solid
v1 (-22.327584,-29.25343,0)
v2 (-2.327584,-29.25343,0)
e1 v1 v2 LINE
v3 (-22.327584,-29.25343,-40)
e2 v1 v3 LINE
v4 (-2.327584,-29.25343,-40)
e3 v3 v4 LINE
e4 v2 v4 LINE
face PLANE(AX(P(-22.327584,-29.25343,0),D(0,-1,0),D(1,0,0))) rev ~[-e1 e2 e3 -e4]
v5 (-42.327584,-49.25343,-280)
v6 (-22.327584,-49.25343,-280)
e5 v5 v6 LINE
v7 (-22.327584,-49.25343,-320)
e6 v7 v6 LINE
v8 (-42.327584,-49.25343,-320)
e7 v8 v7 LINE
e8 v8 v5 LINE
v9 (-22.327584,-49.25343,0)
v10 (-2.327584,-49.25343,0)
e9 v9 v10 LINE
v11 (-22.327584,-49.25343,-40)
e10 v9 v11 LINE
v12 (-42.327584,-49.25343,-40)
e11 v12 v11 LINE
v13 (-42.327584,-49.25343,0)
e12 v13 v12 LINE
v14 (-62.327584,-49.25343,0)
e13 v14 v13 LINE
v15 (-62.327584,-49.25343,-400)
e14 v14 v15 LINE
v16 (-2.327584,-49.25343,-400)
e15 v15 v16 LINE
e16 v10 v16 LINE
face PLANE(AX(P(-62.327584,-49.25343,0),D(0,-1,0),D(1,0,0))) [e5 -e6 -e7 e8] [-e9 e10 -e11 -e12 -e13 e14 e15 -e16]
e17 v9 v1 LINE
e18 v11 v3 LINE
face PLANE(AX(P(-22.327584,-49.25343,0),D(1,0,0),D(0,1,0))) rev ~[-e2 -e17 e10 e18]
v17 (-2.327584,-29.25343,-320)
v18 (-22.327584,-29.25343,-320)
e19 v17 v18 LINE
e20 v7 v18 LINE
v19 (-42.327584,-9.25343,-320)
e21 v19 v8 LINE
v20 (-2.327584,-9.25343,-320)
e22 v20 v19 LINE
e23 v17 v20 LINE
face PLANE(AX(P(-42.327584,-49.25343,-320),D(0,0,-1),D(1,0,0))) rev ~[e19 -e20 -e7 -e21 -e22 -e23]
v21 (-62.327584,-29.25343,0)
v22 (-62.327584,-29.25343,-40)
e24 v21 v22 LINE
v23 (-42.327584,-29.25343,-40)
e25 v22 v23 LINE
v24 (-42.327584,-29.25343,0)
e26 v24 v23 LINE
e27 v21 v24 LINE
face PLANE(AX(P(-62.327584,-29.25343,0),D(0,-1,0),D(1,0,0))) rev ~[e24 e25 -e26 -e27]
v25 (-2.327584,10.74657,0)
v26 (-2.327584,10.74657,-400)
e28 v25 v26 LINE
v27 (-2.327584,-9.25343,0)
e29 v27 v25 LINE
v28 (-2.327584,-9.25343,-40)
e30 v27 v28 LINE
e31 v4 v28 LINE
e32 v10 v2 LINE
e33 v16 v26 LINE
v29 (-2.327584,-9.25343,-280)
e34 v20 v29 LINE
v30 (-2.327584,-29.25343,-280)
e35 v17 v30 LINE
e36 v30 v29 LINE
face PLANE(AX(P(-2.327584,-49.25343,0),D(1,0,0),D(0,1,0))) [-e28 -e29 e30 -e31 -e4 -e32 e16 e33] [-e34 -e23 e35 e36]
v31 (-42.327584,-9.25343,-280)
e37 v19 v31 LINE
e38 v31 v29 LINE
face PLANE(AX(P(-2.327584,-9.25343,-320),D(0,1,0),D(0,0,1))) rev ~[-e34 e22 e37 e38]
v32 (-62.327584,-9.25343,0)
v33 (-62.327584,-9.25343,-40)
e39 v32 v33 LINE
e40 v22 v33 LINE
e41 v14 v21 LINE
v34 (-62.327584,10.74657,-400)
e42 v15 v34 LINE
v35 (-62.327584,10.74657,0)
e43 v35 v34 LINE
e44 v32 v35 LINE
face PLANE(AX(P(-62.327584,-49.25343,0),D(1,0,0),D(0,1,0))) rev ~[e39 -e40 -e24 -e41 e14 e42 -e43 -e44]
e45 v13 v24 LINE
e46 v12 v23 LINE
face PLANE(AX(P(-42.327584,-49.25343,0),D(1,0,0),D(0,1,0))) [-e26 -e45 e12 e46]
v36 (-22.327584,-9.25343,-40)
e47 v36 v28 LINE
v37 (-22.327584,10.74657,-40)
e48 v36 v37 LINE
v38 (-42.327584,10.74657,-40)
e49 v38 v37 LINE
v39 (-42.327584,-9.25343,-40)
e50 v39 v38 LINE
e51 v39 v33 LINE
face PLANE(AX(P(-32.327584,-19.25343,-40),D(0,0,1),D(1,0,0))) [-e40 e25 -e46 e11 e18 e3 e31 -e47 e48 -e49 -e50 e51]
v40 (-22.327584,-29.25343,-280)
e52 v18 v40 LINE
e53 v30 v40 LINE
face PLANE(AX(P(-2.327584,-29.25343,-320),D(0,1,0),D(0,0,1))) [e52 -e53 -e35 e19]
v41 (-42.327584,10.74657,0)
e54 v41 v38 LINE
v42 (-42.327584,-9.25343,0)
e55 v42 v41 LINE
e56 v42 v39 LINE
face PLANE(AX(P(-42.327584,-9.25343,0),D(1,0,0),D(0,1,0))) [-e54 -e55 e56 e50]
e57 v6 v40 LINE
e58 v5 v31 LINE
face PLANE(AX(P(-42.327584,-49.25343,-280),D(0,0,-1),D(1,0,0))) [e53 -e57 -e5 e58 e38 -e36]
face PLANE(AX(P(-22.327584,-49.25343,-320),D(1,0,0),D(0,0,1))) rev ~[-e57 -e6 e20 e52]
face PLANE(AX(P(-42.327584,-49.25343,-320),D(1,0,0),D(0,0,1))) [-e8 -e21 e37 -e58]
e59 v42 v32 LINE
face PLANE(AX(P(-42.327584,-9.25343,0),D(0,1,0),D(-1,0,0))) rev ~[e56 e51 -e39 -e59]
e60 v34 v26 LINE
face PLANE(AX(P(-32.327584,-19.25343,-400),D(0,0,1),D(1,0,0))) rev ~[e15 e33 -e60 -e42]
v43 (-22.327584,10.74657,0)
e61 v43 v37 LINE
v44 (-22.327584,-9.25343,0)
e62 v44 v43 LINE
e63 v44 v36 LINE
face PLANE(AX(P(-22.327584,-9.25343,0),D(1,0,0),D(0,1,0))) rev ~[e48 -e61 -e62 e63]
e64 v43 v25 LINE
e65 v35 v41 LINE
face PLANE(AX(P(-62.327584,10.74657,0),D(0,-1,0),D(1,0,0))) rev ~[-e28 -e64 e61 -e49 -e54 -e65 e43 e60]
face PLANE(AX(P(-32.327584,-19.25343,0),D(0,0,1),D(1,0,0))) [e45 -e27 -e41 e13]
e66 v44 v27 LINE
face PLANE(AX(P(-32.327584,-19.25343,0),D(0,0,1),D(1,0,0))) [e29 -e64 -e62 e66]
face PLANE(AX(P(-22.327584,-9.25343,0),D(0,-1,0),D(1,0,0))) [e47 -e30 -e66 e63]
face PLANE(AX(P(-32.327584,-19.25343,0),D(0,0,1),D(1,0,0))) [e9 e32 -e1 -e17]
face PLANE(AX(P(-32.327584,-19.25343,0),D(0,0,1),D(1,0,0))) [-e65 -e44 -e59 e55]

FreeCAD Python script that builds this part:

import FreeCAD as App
import Part
import Sketcher

V = App.Vector

doc = App.newDocument("Part")
body = doc.addObject("PartDesign::Body", "Body")

# Sketch on XY plane
sketch1 = doc.addObject("Sketcher::SketchObject", "Sketch")
body.addObject(sketch1)
sketch1.AttachmentSupport = (doc.XY_Plane, [""])
sketch1.MapMode = "FlatFace"
sketch1.addGeometry([
    Part.LineSegment(V(-62, 11, 0), V(-62, -49, 0)),
    Part.LineSegment(V(-62, -49, 0), V(-2, -49, 0)),
    Part.LineSegment(V(-2, -49, 0), V(-2, 11, 0)),
    Part.LineSegment(V(-2, 11, 0), V(-62, 11, 0)),
], False)
sketch1.addConstraint([
    Sketcher.Constraint("Coincident", 0, 2, 1, 1),
    Sketcher.Constraint("Coincident", 1, 2, 2, 1),
    Sketcher.Constraint("Coincident", 2, 2, 3, 1),
    Sketcher.Constraint("Coincident", 3, 2, 0, 1),
    Sketcher.Constraint("Vertical", 0),
    Sketcher.Constraint("Horizontal", 1),
    Sketcher.Constraint("Vertical", 2),
    Sketcher.Constraint("Horizontal", 3),
    Sketcher.Constraint("Equal", 3, 0),
    Sketcher.Constraint("DistanceX", 1, 1, 1, 2, 60.0),
    Sketcher.Constraint("DistanceY", 0, 2, -1, 1, 49.25343),
    Sketcher.Constraint("DistanceX", 0, 2, -1, 1, 62.327584),
])
pad1 = doc.addObject("PartDesign::Pad", "Pad")
body.addObject(pad1)
pad1.Profile = sketch1
pad1.Length = 400
pad1.Reversed = True

# Sketch on XY plane
sketch2 = doc.addObject("Sketcher::SketchObject", "Sketch001")
body.addObject(sketch2)
sketch2.AttachmentSupport = (doc.XY_Plane, [""])
sketch2.MapMode = "FlatFace"
sketch2.addGeometry([
    Part.LineSegment(V(-22, -9, 0), V(-22, 11, 0)),  # 0
    Part.LineSegment(V(-22, 11, 0), V(-42, 11, 0)),  # 1
    Part.LineSegment(V(-42, 11, 0), V(-42, -9, 0)),  # 2
    Part.LineSegment(V(-42, -9, 0), V(-62, -9, 0)),  # 3
    Part.LineSegment(V(-62, -9, 0), V(-62, -29, 0)),  # 4
    Part.LineSegment(V(-62, -29, 0), V(-42, -29, 0)),  # 5
    Part.LineSegment(V(-42, -29, 0), V(-42, -49, 0)),  # 6
    Part.LineSegment(V(-42, -49, 0), V(-22, -49, 0)),  # 7
    Part.LineSegment(V(-22, -49, 0), V(-22, -29, 0)),  # 8
    Part.LineSegment(V(-22, -29, 0), V(-2, -29, 0)),  # 9
    Part.LineSegment(V(-2, -29, 0), V(-2, -9, 0)),  # 10
    Part.LineSegment(V(-2, -9, 0), V(-22, -9, 0)),  # 11
], False)
sketch2.addConstraint([
    Sketcher.Constraint("Coincident", 0, 2, 1, 1),
    Sketcher.Constraint("Coincident", 1, 2, 2, 1),
    Sketcher.Constraint("Coincident", 2, 2, 3, 1),
    Sketcher.Constraint("Coincident", 3, 2, 4, 1),
    Sketcher.Constraint("Coincident", 4, 2, 5, 1),
    Sketcher.Constraint("Coincident", 5, 2, 6, 1),
    Sketcher.Constraint("Coincident", 6, 2, 7, 1),
    Sketcher.Constraint("Coincident", 7, 2, 8, 1),
    Sketcher.Constraint("Coincident", 8, 2, 9, 1),
    Sketcher.Constraint("Coincident", 9, 2, 10, 1),
    Sketcher.Constraint("Coincident", 10, 2, 11, 1),
    Sketcher.Constraint("Coincident", 11, 2, 0, 1),
    Sketcher.Constraint("Vertical", 0),
    Sketcher.Constraint("Horizontal", 1),
    Sketcher.Constraint("Vertical", 2),
    Sketcher.Constraint("Horizontal", 3),
    Sketcher.Constraint("Vertical", 4),
    Sketcher.Constraint("Horizontal", 5),
    Sketcher.Constraint("Vertical", 6),
    Sketcher.Constraint("Horizontal", 7),
    Sketcher.Constraint("Vertical", 8),
    Sketcher.Constraint("Horizontal", 9),
    Sketcher.Constraint("Vertical", 10),
    Sketcher.Constraint("Horizontal", 11),
    Sketcher.Constraint("Horizontal", 5, 2, 8, 2),
    Sketcher.Constraint("Horizontal", 3, 2, 10, 2),
    Sketcher.Constraint("Vertical", 2, 2, 5, 2),
    Sketcher.Constraint("Vertical", 0, 2, 7, 2),
    Sketcher.Constraint("Equal", 1, 3),
    Sketcher.Constraint("Equal", 7, 9),
    Sketcher.Constraint("Equal", 11, 0),
    Sketcher.Constraint("Equal", 2, 4),
    Sketcher.Constraint("Equal", 4, 6),
    Sketcher.Constraint("DistanceX", 1, 2, 1, 1, 20.0),
    Sketcher.Constraint("DistanceY", -1, 1, 0, 2, 10.74657),
    Sketcher.Constraint("DistanceX", 0, 2, -1, 1, 22.327584),
])
pocket1 = doc.addObject("PartDesign::Pocket", "Pocket")
body.addObject(pocket1)
pocket1.Profile = sketch2
pocket1.Length = 40

# Sketch on XZ plane
sketch3 = doc.addObject("Sketcher::SketchObject", "Sketch002")
body.addObject(sketch3)
sketch3.AttachmentSupport = (doc.XZ_Plane, [""])
sketch3.MapMode = "FlatFace"
sketch3.AttachmentOffset = App.Placement(V(0, 0, 49.25343), App.Rotation())
sketch3.addGeometry([
    Part.LineSegment(V(-42, -280, 0), V(-42, -320, 0)),
    Part.LineSegment(V(-42, -320, 0), V(-22, -320, 0)),
    Part.LineSegment(V(-22, -320, 0), V(-22, -280, 0)),
    Part.LineSegment(V(-22, -280, 0), V(-42, -280, 0)),
], False)
sketch3.addConstraint([
    Sketcher.Constraint("Coincident", 0, 2, 1, 1),
    Sketcher.Constraint("Coincident", 1, 2, 2, 1),
    Sketcher.Constraint("Coincident", 2, 2, 3, 1),
    Sketcher.Constraint("Coincident", 3, 2, 0, 1),
    Sketcher.Constraint("Vertical", 0),
    Sketcher.Constraint("Horizontal", 1),
    Sketcher.Constraint("Vertical", 2),
    Sketcher.Constraint("Horizontal", 3),
    Sketcher.Constraint("DistanceX", 1, 1, 1, 2, 20.0),
    Sketcher.Constraint("DistanceY", 0, 2, 0, 1, 40.0),
    Sketcher.Constraint("DistanceY", 0, 2, -1, 1, 320.0),
    Sketcher.Constraint("DistanceX", 0, 2, -1, 1, 42.327584),
])
pocket2 = doc.addObject("PartDesign::Pocket", "Pocket001")
body.addObject(pocket2)
pocket2.Profile = sketch3
pocket2.Length = 40

# Sketch on YZ plane
sketch4 = doc.addObject("Sketcher::SketchObject", "Sketch003")
body.addObject(sketch4)
sketch4.AttachmentSupport = (doc.YZ_Plane, [""])
sketch4.MapMode = "FlatFace"
sketch4.AttachmentOffset = App.Placement(V(0, 0, -2.327584), App.Rotation())
sketch4.addGeometry([
    Part.LineSegment(V(-29, -280, 0), V(-29, -320, 0)),
    Part.LineSegment(V(-29, -320, 0), V(-9, -320, 0)),
    Part.LineSegment(V(-9, -320, 0), V(-9, -280, 0)),
    Part.LineSegment(V(-9, -280, 0), V(-29, -280, 0)),
], False)
sketch4.addConstraint([
    Sketcher.Constraint("Coincident", 0, 2, 1, 1),
    Sketcher.Constraint("Coincident", 1, 2, 2, 1),
    Sketcher.Constraint("Coincident", 2, 2, 3, 1),
    Sketcher.Constraint("Coincident", 3, 2, 0, 1),
    Sketcher.Constraint("Vertical", 0),
    Sketcher.Constraint("Horizontal", 1),
    Sketcher.Constraint("Vertical", 2),
    Sketcher.Constraint("Horizontal", 3),
    Sketcher.Constraint("DistanceX", 1, 1, 1, 2, 20.0),
    Sketcher.Constraint("DistanceY", 0, 2, 0, 1, 40.0),
    Sketcher.Constraint("DistanceY", 0, 2, -1, 1, 320.0),
    Sketcher.Constraint("DistanceX", 0, 2, -1, 1, 29.25343),
])
pocket3 = doc.addObject("PartDesign::Pocket", "Pocket002")
body.addObject(pocket3)
pocket3.Profile = sketch4
pocket3.Length = 40

doc.recompute()
